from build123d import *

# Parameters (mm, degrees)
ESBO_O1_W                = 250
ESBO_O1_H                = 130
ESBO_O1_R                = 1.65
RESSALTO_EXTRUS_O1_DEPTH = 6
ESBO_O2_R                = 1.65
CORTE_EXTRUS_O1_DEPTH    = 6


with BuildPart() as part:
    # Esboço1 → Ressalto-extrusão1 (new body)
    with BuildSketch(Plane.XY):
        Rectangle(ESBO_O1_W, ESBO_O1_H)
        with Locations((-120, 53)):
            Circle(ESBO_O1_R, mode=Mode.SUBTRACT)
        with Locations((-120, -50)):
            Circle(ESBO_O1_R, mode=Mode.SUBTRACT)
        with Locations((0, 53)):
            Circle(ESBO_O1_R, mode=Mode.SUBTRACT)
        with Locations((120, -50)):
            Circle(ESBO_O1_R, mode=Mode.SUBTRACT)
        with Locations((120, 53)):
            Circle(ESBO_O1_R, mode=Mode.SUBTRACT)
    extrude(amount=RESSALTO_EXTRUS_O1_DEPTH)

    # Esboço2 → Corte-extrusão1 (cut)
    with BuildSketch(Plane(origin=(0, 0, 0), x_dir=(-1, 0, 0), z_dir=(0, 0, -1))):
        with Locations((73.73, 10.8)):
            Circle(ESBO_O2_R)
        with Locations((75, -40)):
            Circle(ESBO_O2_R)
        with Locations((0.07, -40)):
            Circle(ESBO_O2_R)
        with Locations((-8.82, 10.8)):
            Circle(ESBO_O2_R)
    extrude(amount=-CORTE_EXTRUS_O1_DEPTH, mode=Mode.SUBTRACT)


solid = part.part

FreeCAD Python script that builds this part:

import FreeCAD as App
import Part
import Sketcher


def add_polygon(sketch, points):
    """Adds a closed chain of lines whose ends are joined by coincident constraints."""
    first, n = sketch.GeometryCount, len(points)
    for a, b in zip(points, points[1:] + points[:1]):
        sketch.addGeometry(Part.LineSegment(App.Vector(*a, 0), App.Vector(*b, 0)), False)
    for i in range(n):
        sketch.addConstraint(Sketcher.Constraint("Coincident", first + i, 2, first + (i + 1) % n, 1))

doc = App.newDocument("Part")
body = doc.addObject("PartDesign::Body", "Body")

sketch1 = body.newObject("Sketcher::SketchObject", "Sketch")
sketch1.AttachmentSupport = (doc.getObject("XY_Plane"), [""])
sketch1.MapMode = "FlatFace"
add_polygon(sketch1, [(-125, 65), (-125, -65), (125, -65), (125, 65)])
sketch1.addGeometry(Part.Circle(App.Vector(-120, -50, 0), App.Vector(0, 0, 1), 1.6), False)
sketch1.addGeometry(Part.Circle(App.Vector(120, -50, 0), App.Vector(0, 0, 1), 1.6), False)
sketch1.addGeometry(Part.Circle(App.Vector(-120, 53, 0), App.Vector(0, 0, 1), 1.6), False)
sketch1.addGeometry(Part.Circle(App.Vector(0, 53, 0), App.Vector(0, 0, 1), 1.6), False)
sketch1.addGeometry(Part.Circle(App.Vector(120, 53, 0), App.Vector(0, 0, 1), 1.6), False)
sketch1.addConstraint(Sketcher.Constraint("Vertical", 0))
sketch1.addConstraint(Sketcher.Constraint("Horizontal", 1))
sketch1.addConstraint(Sketcher.Constraint("Vertical", 2))
sketch1.addConstraint(Sketcher.Constraint("Horizontal", 3))
sketch1.addConstraint(Sketcher.Constraint("Equal", 4, 5))
sketch1.addConstraint(Sketcher.Constraint("Equal", 5, 6))
sketch1.addConstraint(Sketcher.Constraint("Equal", 6, 7))
sketch1.addConstraint(Sketcher.Constraint("Equal", 7, 8))
sketch1.addConstraint(Sketcher.Constraint("Symmetric", 0, 2, 2, 2, -1, 1))
sketch1.addConstraint(Sketcher.Constraint("Symmetric", 4, 3, 5, 3, -2))
sketch1.addConstraint(Sketcher.Constraint("Symmetric", 6, 3, 8, 3, -2))
sketch1.addConstraint(Sketcher.Constraint("PointOnObject", 7, 3, -2))
sketch1.addConstraint(Sketcher.Constraint("Horizontal", 6, 3, 7, 3))
sketch1.addConstraint(Sketcher.Constraint("Vertical", 4, 3, 6, 3))
sketch1.addConstraint(Sketcher.Constraint("Diameter", 4, 3.3))
sketch1.addConstraint(Sketcher.Constraint("DistanceX", 1, 1, 1, 2, 250.0))
sketch1.addConstraint(Sketcher.Constraint("DistanceY", 0, 2, 0, 1, 130.0))
sketch1.addConstraint(Sketcher.Constraint("DistanceX", 4, 3, -1, 1, 120.0))
sketch1.addConstraint(Sketcher.Constraint("DistanceY", 4, 3, -1, 1, 50.0))
sketch1.addConstraint(Sketcher.Constraint("DistanceY", -1, 1, 6, 3, 53.0))
pad1 = body.newObject("PartDesign::Pad", "Pad")
pad1.Profile = sketch1
pad1.Length = 6

sketch2 = body.newObject("Sketcher::SketchObject", "Sketch001")
sketch2.AttachmentSupport = (doc.getObject("XY_Plane"), [""])
sketch2.MapMode = "FlatFace"
sketch2.addGeometry(Part.Circle(App.Vector(-73.7, 10.8, 0), App.Vector(0, 0, 1), 1.6), False)
sketch2.addGeometry(Part.Circle(App.Vector(-75, -40, 0), App.Vector(0, 0, 1), 1.6), False)
sketch2.addGeometry(Part.Circle(App.Vector(-0.1, -40, 0), App.Vector(0, 0, 1), 1.6), False)
sketch2.addGeometry(Part.Circle(App.Vector(8.8, 10.8, 0), App.Vector(0, 0, 1), 1.6), False)
sketch2.addConstraint(Sketcher.Constraint("Equal", 0, 1))
sketch2.addConstraint(Sketcher.Constraint("Equal", 1, 2))
sketch2.addConstraint(Sketcher.Constraint("Equal", 2, 3))
sketch2.addConstraint(Sketcher.Constraint("Horizontal", 1, 3, 2, 3))
sketch2.addConstraint(Sketcher.Constraint("Horizontal", 0, 3, 3, 3))
sketch2.addConstraint(Sketcher.Constraint("Diameter", 0, 3.3))
sketch2.addConstraint(Sketcher.Constraint("DistanceX", 1, 3, -1, 1, 75.0))
sketch2.addConstraint(Sketcher.Constraint("DistanceY", 1, 3, -1, 1, 40.0))
sketch2.addConstraint(Sketcher.Constraint("DistanceY", -1, 1, 0, 3, 10.8))
sketch2.addConstraint(Sketcher.Constraint("DistanceX", 0, 3, -1, 1, 73.73))
sketch2.addConstraint(Sketcher.Constraint("DistanceX", 2, 3, -1, 1, 0.07))
sketch2.addConstraint(Sketcher.Constraint("DistanceX", -1, 1, 3, 3, 8.82))
pocket1 = body.newObject("PartDesign::Pocket", "Pocket")
pocket1.Profile = sketch2
pocket1.Length = 6
pocket1.Reversed = True

doc.recompute()
